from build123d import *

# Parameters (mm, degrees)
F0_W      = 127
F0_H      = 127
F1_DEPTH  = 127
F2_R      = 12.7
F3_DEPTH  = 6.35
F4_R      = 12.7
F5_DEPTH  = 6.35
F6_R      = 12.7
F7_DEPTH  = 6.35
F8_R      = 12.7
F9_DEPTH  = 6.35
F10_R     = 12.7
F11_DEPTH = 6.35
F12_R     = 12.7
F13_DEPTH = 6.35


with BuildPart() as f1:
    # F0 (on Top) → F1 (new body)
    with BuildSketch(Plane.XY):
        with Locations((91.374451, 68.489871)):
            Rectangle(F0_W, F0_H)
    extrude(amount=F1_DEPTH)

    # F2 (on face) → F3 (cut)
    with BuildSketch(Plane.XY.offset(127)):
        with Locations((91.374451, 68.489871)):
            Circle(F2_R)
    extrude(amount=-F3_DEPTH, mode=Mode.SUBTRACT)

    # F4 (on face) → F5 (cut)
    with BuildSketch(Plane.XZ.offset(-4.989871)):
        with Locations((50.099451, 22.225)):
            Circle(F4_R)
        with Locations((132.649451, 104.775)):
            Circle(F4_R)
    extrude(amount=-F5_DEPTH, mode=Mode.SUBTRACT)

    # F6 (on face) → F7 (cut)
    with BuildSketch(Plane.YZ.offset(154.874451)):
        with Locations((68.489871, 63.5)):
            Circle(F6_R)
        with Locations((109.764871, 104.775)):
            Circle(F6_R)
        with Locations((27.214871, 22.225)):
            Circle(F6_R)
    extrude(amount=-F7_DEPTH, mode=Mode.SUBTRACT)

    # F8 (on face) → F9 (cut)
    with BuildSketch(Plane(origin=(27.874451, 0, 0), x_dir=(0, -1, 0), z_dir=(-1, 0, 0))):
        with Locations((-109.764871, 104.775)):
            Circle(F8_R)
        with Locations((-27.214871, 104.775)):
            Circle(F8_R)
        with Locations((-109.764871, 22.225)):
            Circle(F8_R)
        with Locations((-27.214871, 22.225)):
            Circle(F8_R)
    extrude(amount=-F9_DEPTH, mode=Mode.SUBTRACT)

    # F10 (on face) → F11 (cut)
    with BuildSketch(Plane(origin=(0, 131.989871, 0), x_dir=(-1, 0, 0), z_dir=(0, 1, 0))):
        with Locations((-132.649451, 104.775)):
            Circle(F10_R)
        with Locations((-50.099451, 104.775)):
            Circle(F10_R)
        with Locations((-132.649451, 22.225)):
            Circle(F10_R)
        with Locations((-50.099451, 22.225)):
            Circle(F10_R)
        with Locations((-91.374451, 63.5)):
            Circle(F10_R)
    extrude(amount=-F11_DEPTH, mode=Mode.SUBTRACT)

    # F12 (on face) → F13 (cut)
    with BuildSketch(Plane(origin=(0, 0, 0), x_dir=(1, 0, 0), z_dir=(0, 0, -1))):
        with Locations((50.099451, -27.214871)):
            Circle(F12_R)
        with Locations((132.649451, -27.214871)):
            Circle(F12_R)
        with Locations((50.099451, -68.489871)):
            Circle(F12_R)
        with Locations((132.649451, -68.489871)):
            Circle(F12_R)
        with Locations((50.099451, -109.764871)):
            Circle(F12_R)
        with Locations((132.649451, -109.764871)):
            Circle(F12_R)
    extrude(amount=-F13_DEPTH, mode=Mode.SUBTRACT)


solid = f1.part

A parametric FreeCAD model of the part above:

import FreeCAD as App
import Part
import Sketcher
from FreeCAD import Vector
Q = App.Units.Quantity


def add_polygon(sketch, points):
    """Adds a closed chain of lines whose ends are joined by coincident constraints."""
    first, n = sketch.GeometryCount, len(points)
    for a, b in zip(points, points[1:] + points[:1]):
        sketch.addGeometry(Part.LineSegment(App.Vector(*a, 0), App.Vector(*b, 0)), False)
    for i in range(n):
        sketch.addConstraint(Sketcher.Constraint("Coincident", first + i, 2, first + (i + 1) % n, 1))

doc = App.newDocument("Part")
body = doc.addObject("PartDesign::Body", "Body")

# Sketch on XY plane
sketch1 = doc.addObject("Sketcher::SketchObject", "Sketch")
body.addObject(sketch1)
sketch1.AttachmentSupport = (doc.XY_Plane, [""])
sketch1.MapMode = "FlatFace"
add_polygon(sketch1, [(28, 132), (28, 5), (155, 5), (155, 132)])  # lines 0-3
sketch1.addConstraint([
    Sketcher.Constraint("Vertical", 0),
    Sketcher.Constraint("Horizontal", 1),
    Sketcher.Constraint("Vertical", 2),
    Sketcher.Constraint("Horizontal", 3),
    Sketcher.Constraint("Equal", 3, 0),
    Sketcher.Constraint("DistanceX", 1, 1, 1, 2, Q("5 in")),
    Sketcher.Constraint("DistanceX", -1, 1, 0, 2, Q("27.874451 mm")),
    Sketcher.Constraint("DistanceY", -1, 1, 0, 2, Q("4.989871 mm")),
])
pad1 = doc.addObject("PartDesign::Pad", "Pad")
body.addObject(pad1)
pad1.Profile = sketch1
pad1.Length = Q("5 in")

# Sketch on XY plane
sketch2 = doc.addObject("Sketcher::SketchObject", "Sketch001")
body.addObject(sketch2)
sketch2.AttachmentSupport = (doc.XY_Plane, [""])
sketch2.MapMode = "FlatFace"
sketch2.AttachmentOffset = App.Placement(Vector(0, 0, 5 * 25.4), App.Rotation())
sketch2.addGeometry(Part.Circle(Vector(91, 68, 0), Vector(0, 0, 1), 13), False)
sketch2.addConstraint([
    Sketcher.Constraint("Diameter", 0, Q("1 in")),
    Sketcher.Constraint("DistanceX", -1, 1, 0, 3, Q("91.374451 mm")),
    Sketcher.Constraint("DistanceY", -1, 1, 0, 3, Q("68.489871 mm")),
])
pocket1 = doc.addObject("PartDesign::Pocket", "Pocket")
body.addObject(pocket1)
pocket1.Profile = sketch2
pocket1.Length = Q("0.25 in")

# Sketch on XZ plane
sketch3 = doc.addObject("Sketcher::SketchObject", "Sketch002")
body.addObject(sketch3)
sketch3.AttachmentSupport = (doc.XZ_Plane, [""])
sketch3.MapMode = "FlatFace"
sketch3.AttachmentOffset = App.Placement(Vector(0, 0, -4.989871), App.Rotation())
sketch3.addGeometry([
    Part.Circle(Vector(50, 22, 0), Vector(0, 0, 1), 13),
    Part.Circle(Vector(133, 105, 0), Vector(0, 0, 1), 13),
], False)
sketch3.addConstraint([
    Sketcher.Constraint("Equal", 0, 1),
    Sketcher.Constraint("Diameter", 0, Q("1 in")),
    Sketcher.Constraint("DistanceX", 0, 3, 1, 3, Q("3.25 in")),
    Sketcher.Constraint("DistanceY", 0, 3, 1, 3, Q("3.25 in")),
    Sketcher.Constraint("DistanceY", -1, 1, 0, 3, Q("0.875 in")),
    Sketcher.Constraint("DistanceX", -1, 1, 0, 3, Q("50.099451 mm")),
])
pocket2 = doc.addObject("PartDesign::Pocket", "Pocket001")
body.addObject(pocket2)
pocket2.Profile = sketch3
pocket2.Length = Q("0.25 in")

# Sketch on YZ plane
sketch4 = doc.addObject("Sketcher::SketchObject", "Sketch003")
body.addObject(sketch4)
sketch4.AttachmentSupport = (doc.YZ_Plane, [""])
sketch4.MapMode = "FlatFace"
sketch4.AttachmentOffset = App.Placement(Vector(0, 0, 154.874451), App.Rotation())
sketch4.addGeometry([
    Part.Circle(Vector(68, 64, 0), Vector(0, 0, 1), 13),
    Part.Circle(Vector(110, 105, 0), Vector(0, 0, 1), 13),
    Part.Circle(Vector(27, 22, 0), Vector(0, 0, 1), 13),
], False)
sketch4.addConstraint([
    Sketcher.Constraint("Equal", 0, 1),
    Sketcher.Constraint("Equal", 1, 2),
    Sketcher.Constraint("Diameter", 0, Q("1 in")),
    Sketcher.Constraint("DistanceY", -1, 1, 0, 3, Q("2.5 in")),
    Sketcher.Constraint("DistanceX", 2, 3, 1, 3, Q("3.25 in")),
    Sketcher.Constraint("DistanceY", 2, 3, 1, 3, Q("3.25 in")),
    Sketcher.Constraint("DistanceY", -1, 1, 1, 3, Q("4.125 in")),
    Sketcher.Constraint("DistanceX", 0, 3, 1, 3, Q("1.625 in")),
    Sketcher.Constraint("DistanceX", -1, 1, 0, 3, Q("68.489871 mm")),
])
pocket3 = doc.addObject("PartDesign::Pocket", "Pocket002")
body.addObject(pocket3)
pocket3.Profile = sketch4
pocket3.Length = Q("0.25 in")

# Sketch on YZ plane
sketch5 = doc.addObject("Sketcher::SketchObject", "Sketch004")
body.addObject(sketch5)
sketch5.AttachmentSupport = (doc.YZ_Plane, [""])
sketch5.MapMode = "FlatFace"
sketch5.AttachmentOffset = App.Placement(Vector(0, 0, 27.874451), App.Rotation())
sketch5.addGeometry([
    Part.Circle(Vector(110, 105, 0), Vector(0, 0, 1), 13),
    Part.Circle(Vector(27, 105, 0), Vector(0, 0, 1), 13),
    Part.Circle(Vector(110, 22, 0), Vector(0, 0, 1), 13),
    Part.Circle(Vector(27, 22, 0), Vector(0, 0, 1), 13),
], False)
sketch5.addConstraint([
    Sketcher.Constraint("Equal", 0, 1),
    Sketcher.Constraint("Equal", 1, 2),
    Sketcher.Constraint("Equal", 2, 3),
    Sketcher.Constraint("Horizontal", 0, 3, 1, 3),
    Sketcher.Constraint("Horizontal", 2, 3, 3, 3),
    Sketcher.Constraint("Vertical", 0, 3, 2, 3),
    Sketcher.Constraint("Vertical", 1, 3, 3, 3),
    Sketcher.Constraint("Diameter", 0, Q("1 in")),
    Sketcher.Constraint("DistanceX", 1, 3, 0, 3, Q("3.25 in")),
    Sketcher.Constraint("DistanceY", 2, 3, 0, 3, Q("3.25 in")),
    Sketcher.Constraint("DistanceY", -1, 1, 0, 3, Q("4.125 in")),
    Sketcher.Constraint("DistanceX", -1, 1, 0, 3, Q("109.764871 mm")),
])
pocket4 = doc.addObject("PartDesign::Pocket", "Pocket003")
body.addObject(pocket4)
pocket4.Profile = sketch5
pocket4.Length = Q("0.25 in")
pocket4.Reversed = True

# Sketch on XZ plane
sketch6 = doc.addObject("Sketcher::SketchObject", "Sketch005")
body.addObject(sketch6)
sketch6.AttachmentSupport = (doc.XZ_Plane, [""])
sketch6.MapMode = "FlatFace"
sketch6.AttachmentOffset = App.Placement(Vector(0, 0, -131.989871), App.Rotation())
sketch6.addGeometry([
    Part.Circle(Vector(133, 105, 0), Vector(0, 0, 1), 13),  # 0
    Part.Circle(Vector(50, 105, 0), Vector(0, 0, 1), 13),  # 1
    Part.Circle(Vector(133, 22, 0), Vector(0, 0, 1), 13),  # 2
    Part.Circle(Vector(50, 22, 0), Vector(0, 0, 1), 13),  # 3
    Part.Circle(Vector(91, 64, 0), Vector(0, 0, 1), 13),  # 4
], False)
sketch6.addConstraint([
    Sketcher.Constraint("Equal", 0, 1),
    Sketcher.Constraint("Equal", 1, 2),
    Sketcher.Constraint("Equal", 2, 3),
    Sketcher.Constraint("Equal", 3, 4),
    Sketcher.Constraint("Horizontal", 0, 3, 1, 3),
    Sketcher.Constraint("Horizontal", 2, 3, 3, 3),
    Sketcher.Constraint("Vertical", 0, 3, 2, 3),
    Sketcher.Constraint("Vertical", 1, 3, 3, 3),
    Sketcher.Constraint("Diameter", 0, Q("1 in")),
    Sketcher.Constraint("DistanceY", -1, 1, 4, 3, Q("2.5 in")),
    Sketcher.Constraint("DistanceX", 1, 3, 0, 3, Q("3.25 in")),
    Sketcher.Constraint("DistanceY", 2, 3, 0, 3, Q("3.25 in")),
    Sketcher.Constraint("DistanceY", -1, 1, 0, 3, Q("4.125 in")),
    Sketcher.Constraint("DistanceX", 3, 3, 4, 3, Q("1.625 in")),
    Sketcher.Constraint("DistanceX", -1, 1, 0, 3, Q("132.649451 mm")),
])
pocket5 = doc.addObject("PartDesign::Pocket", "Pocket004")
body.addObject(pocket5)
pocket5.Profile = sketch6
pocket5.Length = Q("0.25 in")
pocket5.Reversed = True

# Sketch on XY plane
sketch7 = doc.addObject("Sketcher::SketchObject", "Sketch006")
body.addObject(sketch7)
sketch7.AttachmentSupport = (doc.XY_Plane, [""])
sketch7.MapMode = "FlatFace"
sketch7.addGeometry([
    Part.Circle(Vector(50, 27, 0), Vector(0, 0, 1), 13),  # 0
    Part.Circle(Vector(133, 27, 0), Vector(0, 0, 1), 13),  # 1
    Part.Circle(Vector(50, 68, 0), Vector(0, 0, 1), 13),  # 2
    Part.Circle(Vector(133, 68, 0), Vector(0, 0, 1), 13),  # 3
    Part.Circle(Vector(50, 110, 0), Vector(0, 0, 1), 13),  # 4
    Part.Circle(Vector(133, 110, 0), Vector(0, 0, 1), 13),  # 5
], False)
sketch7.addConstraint([
    Sketcher.Constraint("Equal", 0, 1),
    Sketcher.Constraint("Equal", 1, 2),
    Sketcher.Constraint("Equal", 2, 3),
    Sketcher.Constraint("Equal", 3, 4),
    Sketcher.Constraint("Equal", 4, 5),
    Sketcher.Constraint("Horizontal", 0, 3, 1, 3),
    Sketcher.Constraint("Horizontal", 2, 3, 3, 3),
    Sketcher.Constraint("Horizontal", 4, 3, 5, 3),
    Sketcher.Constraint("Vertical", 0, 3, 2, 3),
    Sketcher.Constraint("Vertical", 1, 3, 3, 3),
    Sketcher.Constraint("Vertical", 2, 3, 4, 3),
    Sketcher.Constraint("Vertical", 3, 3, 5, 3),
    Sketcher.Constraint("Diameter", 0, Q("1 in")),
    Sketcher.Constraint("DistanceX", 0, 3, 1, 3, Q("3.25 in")),
    Sketcher.Constraint("DistanceY", 0, 3, 4, 3, Q("3.25 in")),
    Sketcher.Constraint("DistanceY", 0, 3, 2, 3, Q("1.625 in")),
    Sketcher.Constraint("DistanceX", -1, 1, 0, 3, Q("50.099451 mm")),
    Sketcher.Constraint("DistanceY", -1, 1, 0, 3, Q("27.214871 mm")),
])
pocket6 = doc.addObject("PartDesign::Pocket", "Pocket005")
body.addObject(pocket6)
pocket6.Profile = sketch7
pocket6.Length = Q("0.25 in")
pocket6.Reversed = True

doc.recompute()
